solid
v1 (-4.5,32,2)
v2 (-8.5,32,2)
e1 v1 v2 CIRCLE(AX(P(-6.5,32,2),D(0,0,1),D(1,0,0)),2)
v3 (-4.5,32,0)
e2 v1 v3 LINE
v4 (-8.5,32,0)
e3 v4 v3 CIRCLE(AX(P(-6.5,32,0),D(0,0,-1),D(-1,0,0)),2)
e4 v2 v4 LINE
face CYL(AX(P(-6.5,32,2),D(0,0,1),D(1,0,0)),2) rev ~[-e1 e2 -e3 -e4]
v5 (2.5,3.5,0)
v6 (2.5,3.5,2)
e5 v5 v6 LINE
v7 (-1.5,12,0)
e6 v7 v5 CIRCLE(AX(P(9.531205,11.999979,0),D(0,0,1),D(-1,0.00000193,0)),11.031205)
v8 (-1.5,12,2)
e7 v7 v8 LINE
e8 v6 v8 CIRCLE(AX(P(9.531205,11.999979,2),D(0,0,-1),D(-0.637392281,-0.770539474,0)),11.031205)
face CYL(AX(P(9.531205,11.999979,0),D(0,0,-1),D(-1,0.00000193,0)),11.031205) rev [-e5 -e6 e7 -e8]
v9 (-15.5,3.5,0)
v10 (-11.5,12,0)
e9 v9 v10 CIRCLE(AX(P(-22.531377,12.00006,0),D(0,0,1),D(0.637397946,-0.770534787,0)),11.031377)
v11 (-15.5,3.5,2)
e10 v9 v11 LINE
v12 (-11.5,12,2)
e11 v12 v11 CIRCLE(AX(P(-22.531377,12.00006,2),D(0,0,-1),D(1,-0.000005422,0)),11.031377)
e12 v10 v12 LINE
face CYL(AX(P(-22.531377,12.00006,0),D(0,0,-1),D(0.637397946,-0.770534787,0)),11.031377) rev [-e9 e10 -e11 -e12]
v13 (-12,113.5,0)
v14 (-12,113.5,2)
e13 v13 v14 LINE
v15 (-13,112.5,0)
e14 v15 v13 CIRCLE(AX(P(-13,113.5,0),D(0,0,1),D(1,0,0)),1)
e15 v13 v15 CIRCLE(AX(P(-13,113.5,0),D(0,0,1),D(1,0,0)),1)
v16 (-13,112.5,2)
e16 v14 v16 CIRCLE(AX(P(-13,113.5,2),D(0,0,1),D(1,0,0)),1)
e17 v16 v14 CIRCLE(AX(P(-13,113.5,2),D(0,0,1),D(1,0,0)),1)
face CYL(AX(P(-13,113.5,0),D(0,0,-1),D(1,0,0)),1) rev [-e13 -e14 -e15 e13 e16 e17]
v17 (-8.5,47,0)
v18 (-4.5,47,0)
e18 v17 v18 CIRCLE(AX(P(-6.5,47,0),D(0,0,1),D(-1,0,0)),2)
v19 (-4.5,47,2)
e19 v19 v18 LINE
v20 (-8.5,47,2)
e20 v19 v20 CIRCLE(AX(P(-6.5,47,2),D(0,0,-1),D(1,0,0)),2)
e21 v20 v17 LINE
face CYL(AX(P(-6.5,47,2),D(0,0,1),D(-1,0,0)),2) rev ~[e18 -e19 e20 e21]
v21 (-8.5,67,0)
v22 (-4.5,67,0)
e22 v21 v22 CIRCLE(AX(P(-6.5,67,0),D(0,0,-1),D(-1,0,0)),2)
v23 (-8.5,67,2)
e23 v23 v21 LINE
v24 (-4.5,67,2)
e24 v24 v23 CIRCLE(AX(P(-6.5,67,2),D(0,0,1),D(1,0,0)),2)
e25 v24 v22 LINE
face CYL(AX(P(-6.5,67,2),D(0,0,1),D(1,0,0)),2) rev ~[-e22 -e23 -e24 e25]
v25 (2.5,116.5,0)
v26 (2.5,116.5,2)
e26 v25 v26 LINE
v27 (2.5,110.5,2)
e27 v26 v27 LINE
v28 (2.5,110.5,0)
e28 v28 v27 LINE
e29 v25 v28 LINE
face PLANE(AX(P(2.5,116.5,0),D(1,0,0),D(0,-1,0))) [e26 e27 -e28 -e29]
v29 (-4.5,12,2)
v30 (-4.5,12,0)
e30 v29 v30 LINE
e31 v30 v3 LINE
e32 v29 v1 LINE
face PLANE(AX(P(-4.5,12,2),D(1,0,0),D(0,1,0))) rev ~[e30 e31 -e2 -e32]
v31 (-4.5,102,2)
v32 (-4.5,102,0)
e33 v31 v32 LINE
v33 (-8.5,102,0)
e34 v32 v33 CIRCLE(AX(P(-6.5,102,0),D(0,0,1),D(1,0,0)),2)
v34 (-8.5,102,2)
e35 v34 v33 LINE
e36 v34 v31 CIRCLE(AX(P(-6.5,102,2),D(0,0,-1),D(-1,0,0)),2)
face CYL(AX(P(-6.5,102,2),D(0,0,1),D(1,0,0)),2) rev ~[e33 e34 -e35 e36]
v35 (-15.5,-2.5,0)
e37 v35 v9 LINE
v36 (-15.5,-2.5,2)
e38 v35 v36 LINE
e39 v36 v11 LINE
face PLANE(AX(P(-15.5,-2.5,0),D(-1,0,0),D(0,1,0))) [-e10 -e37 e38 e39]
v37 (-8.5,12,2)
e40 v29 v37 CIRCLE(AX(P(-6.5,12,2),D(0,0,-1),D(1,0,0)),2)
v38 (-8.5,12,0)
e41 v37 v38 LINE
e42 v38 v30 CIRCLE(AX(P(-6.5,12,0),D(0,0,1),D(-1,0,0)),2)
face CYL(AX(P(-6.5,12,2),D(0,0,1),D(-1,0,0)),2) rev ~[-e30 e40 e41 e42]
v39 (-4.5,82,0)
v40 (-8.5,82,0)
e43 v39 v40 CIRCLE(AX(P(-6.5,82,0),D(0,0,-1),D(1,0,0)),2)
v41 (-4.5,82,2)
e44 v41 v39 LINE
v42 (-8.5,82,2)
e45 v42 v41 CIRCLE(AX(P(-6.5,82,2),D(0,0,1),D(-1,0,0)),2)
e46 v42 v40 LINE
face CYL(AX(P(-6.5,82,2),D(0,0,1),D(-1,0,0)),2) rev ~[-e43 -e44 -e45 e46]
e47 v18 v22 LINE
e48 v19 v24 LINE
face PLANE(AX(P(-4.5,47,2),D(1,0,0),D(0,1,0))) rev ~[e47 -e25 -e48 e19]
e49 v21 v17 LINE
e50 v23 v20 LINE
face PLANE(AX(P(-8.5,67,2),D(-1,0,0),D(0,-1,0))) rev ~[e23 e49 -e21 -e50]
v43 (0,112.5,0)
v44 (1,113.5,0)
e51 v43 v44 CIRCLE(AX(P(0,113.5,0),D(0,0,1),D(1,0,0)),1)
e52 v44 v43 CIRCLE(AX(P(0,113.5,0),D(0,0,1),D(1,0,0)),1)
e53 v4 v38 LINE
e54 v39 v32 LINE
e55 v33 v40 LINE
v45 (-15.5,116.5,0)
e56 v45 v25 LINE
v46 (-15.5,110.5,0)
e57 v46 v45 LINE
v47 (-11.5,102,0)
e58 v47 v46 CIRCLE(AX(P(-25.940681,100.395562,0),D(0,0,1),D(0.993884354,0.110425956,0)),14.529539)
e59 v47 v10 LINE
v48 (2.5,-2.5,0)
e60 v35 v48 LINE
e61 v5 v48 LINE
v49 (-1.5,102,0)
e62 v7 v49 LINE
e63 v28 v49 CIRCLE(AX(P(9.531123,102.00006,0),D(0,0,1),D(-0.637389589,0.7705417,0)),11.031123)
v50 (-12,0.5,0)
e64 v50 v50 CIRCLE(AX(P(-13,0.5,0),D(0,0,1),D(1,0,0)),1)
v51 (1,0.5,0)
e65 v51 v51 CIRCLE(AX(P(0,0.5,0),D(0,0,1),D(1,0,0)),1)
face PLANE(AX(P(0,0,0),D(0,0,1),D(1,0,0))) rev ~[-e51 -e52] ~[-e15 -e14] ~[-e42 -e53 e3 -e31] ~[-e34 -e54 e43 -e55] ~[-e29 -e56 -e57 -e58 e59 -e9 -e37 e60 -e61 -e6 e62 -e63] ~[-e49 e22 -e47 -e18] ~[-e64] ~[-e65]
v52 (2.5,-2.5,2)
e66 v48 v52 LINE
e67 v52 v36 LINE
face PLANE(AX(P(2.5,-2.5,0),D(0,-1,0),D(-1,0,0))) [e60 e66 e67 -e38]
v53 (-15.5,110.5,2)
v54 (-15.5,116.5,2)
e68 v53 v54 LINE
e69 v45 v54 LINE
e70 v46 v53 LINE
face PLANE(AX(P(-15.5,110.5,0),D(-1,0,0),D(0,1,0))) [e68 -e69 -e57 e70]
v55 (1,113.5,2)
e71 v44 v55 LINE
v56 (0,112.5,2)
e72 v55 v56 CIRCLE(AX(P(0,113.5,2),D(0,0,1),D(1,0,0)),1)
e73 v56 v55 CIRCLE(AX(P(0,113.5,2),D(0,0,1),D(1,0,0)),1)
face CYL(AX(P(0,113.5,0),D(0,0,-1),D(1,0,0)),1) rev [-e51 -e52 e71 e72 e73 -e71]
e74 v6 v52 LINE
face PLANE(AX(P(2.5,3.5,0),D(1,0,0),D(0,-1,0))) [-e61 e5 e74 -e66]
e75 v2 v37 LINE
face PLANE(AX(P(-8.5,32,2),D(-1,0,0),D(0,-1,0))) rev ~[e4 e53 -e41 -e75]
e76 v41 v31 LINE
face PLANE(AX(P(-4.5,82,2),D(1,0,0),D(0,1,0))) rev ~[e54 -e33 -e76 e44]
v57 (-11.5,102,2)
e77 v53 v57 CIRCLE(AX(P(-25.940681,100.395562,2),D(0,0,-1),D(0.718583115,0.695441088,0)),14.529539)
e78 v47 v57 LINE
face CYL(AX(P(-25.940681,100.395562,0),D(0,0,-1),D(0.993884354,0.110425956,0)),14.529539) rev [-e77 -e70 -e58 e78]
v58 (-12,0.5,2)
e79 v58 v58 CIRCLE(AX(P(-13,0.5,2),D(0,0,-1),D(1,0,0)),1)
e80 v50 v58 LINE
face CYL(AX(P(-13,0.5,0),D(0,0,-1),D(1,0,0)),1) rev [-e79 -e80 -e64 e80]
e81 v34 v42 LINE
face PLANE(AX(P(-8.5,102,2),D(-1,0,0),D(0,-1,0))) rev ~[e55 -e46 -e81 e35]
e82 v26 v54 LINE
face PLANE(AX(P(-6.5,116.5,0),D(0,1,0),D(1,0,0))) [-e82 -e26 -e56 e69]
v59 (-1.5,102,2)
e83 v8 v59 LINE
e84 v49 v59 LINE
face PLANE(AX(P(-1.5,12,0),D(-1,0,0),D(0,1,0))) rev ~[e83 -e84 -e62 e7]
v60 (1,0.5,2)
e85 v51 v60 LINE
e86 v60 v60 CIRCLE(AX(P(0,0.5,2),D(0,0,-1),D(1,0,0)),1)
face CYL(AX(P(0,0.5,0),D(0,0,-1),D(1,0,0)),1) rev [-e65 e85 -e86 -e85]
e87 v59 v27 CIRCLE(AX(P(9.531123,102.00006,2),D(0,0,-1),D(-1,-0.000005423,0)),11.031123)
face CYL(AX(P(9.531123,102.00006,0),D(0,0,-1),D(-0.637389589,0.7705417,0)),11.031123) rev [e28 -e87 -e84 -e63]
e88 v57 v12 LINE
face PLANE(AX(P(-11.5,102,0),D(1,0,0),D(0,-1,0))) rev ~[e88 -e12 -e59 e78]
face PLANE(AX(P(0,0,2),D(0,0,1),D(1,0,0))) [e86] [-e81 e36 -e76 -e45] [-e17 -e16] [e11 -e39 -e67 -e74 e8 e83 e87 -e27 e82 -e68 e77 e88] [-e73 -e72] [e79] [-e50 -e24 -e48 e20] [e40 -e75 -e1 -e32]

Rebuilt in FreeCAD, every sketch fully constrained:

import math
import FreeCAD as App
import Part
import Sketcher

doc = App.newDocument("Part")
body = doc.addObject("PartDesign::Body", "Body")

# Sketch on XY plane
sketch1 = doc.addObject("Sketcher::SketchObject", "Sketch")
body.addObject(sketch1)
sketch1.AttachmentSupport = (doc.XY_Plane, [""])
sketch1.MapMode = "FlatFace"
sketch1.addGeometry([
    Part.LineSegment(App.Vector(2.5, -2.5, 0), App.Vector(2.5, 3.5, 0)),  # 0
    Part.ArcOfCircle(Part.Circle(App.Vector(9.5313, 12, 0), App.Vector(0, 0, 1), 11.0313), math.radians(180), math.radians(230.402047)),  # 1
    Part.LineSegment(App.Vector(-1.5, 12, 0), App.Vector(-1.5, 102, 0)),  # 2
    Part.ArcOfCircle(Part.Circle(App.Vector(9.5312, 102, 0), App.Vector(0, 0, 1), 11.031218), math.radians(129.597553), math.radians(180)),  # 3
    Part.LineSegment(App.Vector(2.5, 110.5, 0), App.Vector(2.5, 116.5, 0)),  # 4
    Part.LineSegment(App.Vector(2.5, 116.5, 0), App.Vector(-15.5, 116.5, 0)),  # 5
    Part.LineSegment(App.Vector(-15.5, 116.5, 0), App.Vector(-15.5, 110.5, 0)),  # 6
    Part.ArcOfCircle(Part.Circle(App.Vector(-25.9409, 100.3955, 0), App.Vector(0, 0, 1), 14.529763), math.radians(6.340018), math.radians(44.061952)),  # 7
    Part.LineSegment(App.Vector(-11.5, 102, 0), App.Vector(-11.5, 12, 0)),  # 8
    Part.ArcOfCircle(Part.Circle(App.Vector(-22.5313, 12, 0), App.Vector(0, 0, 1), 11.031282), math.radians(-50.402047), math.radians(0)),  # 9
    Part.LineSegment(App.Vector(-15.5, 3.5, 0), App.Vector(-15.5, -2.5, 0)),  # 10
    Part.LineSegment(App.Vector(-15.5, -2.5, 0), App.Vector(2.5, -2.5, 0)),  # 11
    Part.Circle(App.Vector(0, 0.5, 0), App.Vector(0, 0, 1), 1),  # 12
    Part.Circle(App.Vector(-13, 0.5, 0), App.Vector(0, 0, 1), 1),  # 13
    Part.Circle(App.Vector(0, 113.5, 0), App.Vector(0, 0, 1), 1),  # 14
    Part.Circle(App.Vector(-13, 113.5, 0), App.Vector(0, 0, 1), 1),  # 15
], False)
sketch1.addConstraint([
    Sketcher.Constraint("Coincident", 0, 2, 1, 2),
    Sketcher.Constraint("Tangent", 1, 1, 2, 1),
    Sketcher.Constraint("Tangent", 2, 2, 3, 2),
    Sketcher.Constraint("Coincident", 3, 1, 4, 1),
    Sketcher.Constraint("Coincident", 4, 2, 5, 1),
    Sketcher.Constraint("Coincident", 5, 2, 6, 1),
    Sketcher.Constraint("Coincident", 6, 2, 7, 2),
    Sketcher.Constraint("Coincident", 7, 1, 8, 1),
    Sketcher.Constraint("Tangent", 8, 2, 9, 2),
    Sketcher.Constraint("Coincident", 9, 1, 10, 1),
    Sketcher.Constraint("Coincident", 10, 2, 11, 1),
    Sketcher.Constraint("Coincident", 11, 2, 0, 1),
    Sketcher.Constraint("Vertical", 0),
    Sketcher.Constraint("Vertical", 2),
    Sketcher.Constraint("Vertical", 4),
    Sketcher.Constraint("Horizontal", 5),
    Sketcher.Constraint("Vertical", 6),
    Sketcher.Constraint("Vertical", 8),
    Sketcher.Constraint("Vertical", 10),
    Sketcher.Constraint("Horizontal", 11),
    Sketcher.Constraint("Equal", 1, 3),
    Sketcher.Constraint("Equal", 3, 9),
    Sketcher.Constraint("Equal", 12, 13),
    Sketcher.Constraint("Equal", 13, 14),
    Sketcher.Constraint("Equal", 14, 15),
    Sketcher.Constraint("PointOnObject", 12, 3, -2),
    Sketcher.Constraint("PointOnObject", 14, 3, -2),
    Sketcher.Constraint("Horizontal", 1, 3, 9, 3),
    Sketcher.Constraint("Horizontal", 12, 3, 13, 3),
    Sketcher.Constraint("Horizontal", 14, 3, 15, 3),
    Sketcher.Constraint("Horizontal", 3, 1, 6, 2),
    Sketcher.Constraint("Horizontal", 2, 2, 7, 1),
    Sketcher.Constraint("Horizontal", 0, 2, 9, 1),
    Sketcher.Constraint("Vertical", 13, 3, 15, 3),
    Sketcher.Constraint("Vertical", 0, 2, 3, 1),
    Sketcher.Constraint("Vertical", 6, 2, 9, 1),
    Sketcher.Constraint("Equal", 0, 4),
    Sketcher.Constraint("Diameter", 12, 2.0),
    Sketcher.Constraint("DistanceX", 5, 2, 5, 1, 18.0),
    Sketcher.Constraint("DistanceY", 0, 1, 0, 2, 6.0),
    Sketcher.Constraint("DistanceY", 2, 1, 2, 2, 90.0),
    Sketcher.Constraint("DistanceY", 12, 3, 14, 3, 113.0),
    Sketcher.Constraint("DistanceX", 7, 1, 2, 2, 10.0),
    Sketcher.Constraint("DistanceY", -1, 1, 1, 3, 12.0),
    Sketcher.Constraint("DistanceX", 13, 3, -1, 1, 13.0),
    Sketcher.Constraint("DistanceY", 12, 3, 0, 2, 3.0),
    Sketcher.Constraint("DistanceY", 3, 1, 14, 3, 3.0),
    Sketcher.Constraint("DistanceX", -1, 1, 0, 2, 2.5),
    Sketcher.Constraint("Radius", 7, 14.5298),
])
pad1 = doc.addObject("PartDesign::Pad", "Pad")
body.addObject(pad1)
pad1.Profile = sketch1
pad1.Length = 2

# Sketch on XY plane
sketch2 = doc.addObject("Sketcher::SketchObject", "Sketch001")
body.addObject(sketch2)
sketch2.AttachmentSupport = (doc.XY_Plane, [""])
sketch2.MapMode = "FlatFace"
sketch2.AttachmentOffset = App.Placement(App.Vector(0, 0, 2), App.Rotation())
sketch2.addGeometry([
    Part.ArcOfCircle(Part.Circle(App.Vector(-6.5, 12, 0), App.Vector(0, 0, 1), 2), math.radians(180), math.radians(360)),  # 0
    Part.LineSegment(App.Vector(-4.5, 12, 0), App.Vector(-4.5, 32, 0)),  # 1
    Part.ArcOfCircle(Part.Circle(App.Vector(-6.5, 32, 0), App.Vector(0, 0, 1), 2), math.radians(0), math.radians(180)),  # 2
    Part.LineSegment(App.Vector(-8.5, 32, 0), App.Vector(-8.5, 12, 0)),  # 3
    Part.ArcOfCircle(Part.Circle(App.Vector(-6.5, 47, 0), App.Vector(0, 0, 1), 2), math.radians(180), math.radians(360)),  # 4
    Part.LineSegment(App.Vector(-4.5, 47, 0), App.Vector(-4.5, 67, 0)),  # 5
    Part.ArcOfCircle(Part.Circle(App.Vector(-6.5, 67, 0), App.Vector(0, 0, 1), 2), math.radians(0), math.radians(180)),  # 6
    Part.LineSegment(App.Vector(-8.5, 67, 0), App.Vector(-8.5, 47, 0)),  # 7
    Part.ArcOfCircle(Part.Circle(App.Vector(-6.5, 102, 0), App.Vector(0, 0, 1), 2), math.radians(0), math.radians(180)),  # 8
    Part.LineSegment(App.Vector(-8.5, 102, 0), App.Vector(-8.5, 82, 0)),  # 9
    Part.ArcOfCircle(Part.Circle(App.Vector(-6.5, 82, 0), App.Vector(0, 0, 1), 2), math.radians(180), math.radians(360)),  # 10
    Part.LineSegment(App.Vector(-4.5, 82, 0), App.Vector(-4.5, 102, 0)),  # 11
], False)
sketch2.addConstraint([
    Sketcher.Constraint("Tangent", 0, 2, 1, 1),
    Sketcher.Constraint("Tangent", 1, 2, 2, 1),
    Sketcher.Constraint("Tangent", 2, 2, 3, 1),
    Sketcher.Constraint("Tangent", 3, 2, 0, 1),
    Sketcher.Constraint("Tangent", 4, 2, 5, 1),
    Sketcher.Constraint("Tangent", 5, 2, 6, 1),
    Sketcher.Constraint("Tangent", 6, 2, 7, 1),
    Sketcher.Constraint("Tangent", 7, 2, 4, 1),
    Sketcher.Constraint("Tangent", 8, 2, 9, 1),
    Sketcher.Constraint("Tangent", 9, 2, 10, 1),
    Sketcher.Constraint("Tangent", 10, 2, 11, 1),
    Sketcher.Constraint("Tangent", 11, 2, 8, 1),
    Sketcher.Constraint("Vertical", 1),
    Sketcher.Constraint("Vertical", 3),
    Sketcher.Constraint("Vertical", 5),
    Sketcher.Constraint("Vertical", 7),
    Sketcher.Constraint("Vertical", 9),
    Sketcher.Constraint("Vertical", 11),
    Sketcher.Constraint("Equal", 2, 4),
    Sketcher.Constraint("Equal", 6, 8),
    Sketcher.Constraint("Vertical", 2, 3, 4, 3),
    Sketcher.Constraint("Vertical", 6, 3, 8, 3),
    Sketcher.Constraint("Equal", 3, 5),
    Sketcher.Constraint("Equal", 7, 9),
    Sketcher.Constraint("Radius", 0, 2.0),
    Sketcher.Constraint("DistanceY", 0, 3, 4, 3, 35.0),
    Sketcher.Constraint("DistanceY", 6, 3, 8, 3, 35.0),
    Sketcher.Constraint("DistanceY", 1, 1, 1, 2, 20.0),
    Sketcher.Constraint("DistanceY", -1, 1, 0, 3, 12.0),
    Sketcher.Constraint("DistanceX", 0, 3, -1, 1, 6.5),
])
pocket1 = doc.addObject("PartDesign::Pocket", "Pocket")
body.addObject(pocket1)
pocket1.Profile = sketch2
pocket1.Length = 2

doc.recompute()
